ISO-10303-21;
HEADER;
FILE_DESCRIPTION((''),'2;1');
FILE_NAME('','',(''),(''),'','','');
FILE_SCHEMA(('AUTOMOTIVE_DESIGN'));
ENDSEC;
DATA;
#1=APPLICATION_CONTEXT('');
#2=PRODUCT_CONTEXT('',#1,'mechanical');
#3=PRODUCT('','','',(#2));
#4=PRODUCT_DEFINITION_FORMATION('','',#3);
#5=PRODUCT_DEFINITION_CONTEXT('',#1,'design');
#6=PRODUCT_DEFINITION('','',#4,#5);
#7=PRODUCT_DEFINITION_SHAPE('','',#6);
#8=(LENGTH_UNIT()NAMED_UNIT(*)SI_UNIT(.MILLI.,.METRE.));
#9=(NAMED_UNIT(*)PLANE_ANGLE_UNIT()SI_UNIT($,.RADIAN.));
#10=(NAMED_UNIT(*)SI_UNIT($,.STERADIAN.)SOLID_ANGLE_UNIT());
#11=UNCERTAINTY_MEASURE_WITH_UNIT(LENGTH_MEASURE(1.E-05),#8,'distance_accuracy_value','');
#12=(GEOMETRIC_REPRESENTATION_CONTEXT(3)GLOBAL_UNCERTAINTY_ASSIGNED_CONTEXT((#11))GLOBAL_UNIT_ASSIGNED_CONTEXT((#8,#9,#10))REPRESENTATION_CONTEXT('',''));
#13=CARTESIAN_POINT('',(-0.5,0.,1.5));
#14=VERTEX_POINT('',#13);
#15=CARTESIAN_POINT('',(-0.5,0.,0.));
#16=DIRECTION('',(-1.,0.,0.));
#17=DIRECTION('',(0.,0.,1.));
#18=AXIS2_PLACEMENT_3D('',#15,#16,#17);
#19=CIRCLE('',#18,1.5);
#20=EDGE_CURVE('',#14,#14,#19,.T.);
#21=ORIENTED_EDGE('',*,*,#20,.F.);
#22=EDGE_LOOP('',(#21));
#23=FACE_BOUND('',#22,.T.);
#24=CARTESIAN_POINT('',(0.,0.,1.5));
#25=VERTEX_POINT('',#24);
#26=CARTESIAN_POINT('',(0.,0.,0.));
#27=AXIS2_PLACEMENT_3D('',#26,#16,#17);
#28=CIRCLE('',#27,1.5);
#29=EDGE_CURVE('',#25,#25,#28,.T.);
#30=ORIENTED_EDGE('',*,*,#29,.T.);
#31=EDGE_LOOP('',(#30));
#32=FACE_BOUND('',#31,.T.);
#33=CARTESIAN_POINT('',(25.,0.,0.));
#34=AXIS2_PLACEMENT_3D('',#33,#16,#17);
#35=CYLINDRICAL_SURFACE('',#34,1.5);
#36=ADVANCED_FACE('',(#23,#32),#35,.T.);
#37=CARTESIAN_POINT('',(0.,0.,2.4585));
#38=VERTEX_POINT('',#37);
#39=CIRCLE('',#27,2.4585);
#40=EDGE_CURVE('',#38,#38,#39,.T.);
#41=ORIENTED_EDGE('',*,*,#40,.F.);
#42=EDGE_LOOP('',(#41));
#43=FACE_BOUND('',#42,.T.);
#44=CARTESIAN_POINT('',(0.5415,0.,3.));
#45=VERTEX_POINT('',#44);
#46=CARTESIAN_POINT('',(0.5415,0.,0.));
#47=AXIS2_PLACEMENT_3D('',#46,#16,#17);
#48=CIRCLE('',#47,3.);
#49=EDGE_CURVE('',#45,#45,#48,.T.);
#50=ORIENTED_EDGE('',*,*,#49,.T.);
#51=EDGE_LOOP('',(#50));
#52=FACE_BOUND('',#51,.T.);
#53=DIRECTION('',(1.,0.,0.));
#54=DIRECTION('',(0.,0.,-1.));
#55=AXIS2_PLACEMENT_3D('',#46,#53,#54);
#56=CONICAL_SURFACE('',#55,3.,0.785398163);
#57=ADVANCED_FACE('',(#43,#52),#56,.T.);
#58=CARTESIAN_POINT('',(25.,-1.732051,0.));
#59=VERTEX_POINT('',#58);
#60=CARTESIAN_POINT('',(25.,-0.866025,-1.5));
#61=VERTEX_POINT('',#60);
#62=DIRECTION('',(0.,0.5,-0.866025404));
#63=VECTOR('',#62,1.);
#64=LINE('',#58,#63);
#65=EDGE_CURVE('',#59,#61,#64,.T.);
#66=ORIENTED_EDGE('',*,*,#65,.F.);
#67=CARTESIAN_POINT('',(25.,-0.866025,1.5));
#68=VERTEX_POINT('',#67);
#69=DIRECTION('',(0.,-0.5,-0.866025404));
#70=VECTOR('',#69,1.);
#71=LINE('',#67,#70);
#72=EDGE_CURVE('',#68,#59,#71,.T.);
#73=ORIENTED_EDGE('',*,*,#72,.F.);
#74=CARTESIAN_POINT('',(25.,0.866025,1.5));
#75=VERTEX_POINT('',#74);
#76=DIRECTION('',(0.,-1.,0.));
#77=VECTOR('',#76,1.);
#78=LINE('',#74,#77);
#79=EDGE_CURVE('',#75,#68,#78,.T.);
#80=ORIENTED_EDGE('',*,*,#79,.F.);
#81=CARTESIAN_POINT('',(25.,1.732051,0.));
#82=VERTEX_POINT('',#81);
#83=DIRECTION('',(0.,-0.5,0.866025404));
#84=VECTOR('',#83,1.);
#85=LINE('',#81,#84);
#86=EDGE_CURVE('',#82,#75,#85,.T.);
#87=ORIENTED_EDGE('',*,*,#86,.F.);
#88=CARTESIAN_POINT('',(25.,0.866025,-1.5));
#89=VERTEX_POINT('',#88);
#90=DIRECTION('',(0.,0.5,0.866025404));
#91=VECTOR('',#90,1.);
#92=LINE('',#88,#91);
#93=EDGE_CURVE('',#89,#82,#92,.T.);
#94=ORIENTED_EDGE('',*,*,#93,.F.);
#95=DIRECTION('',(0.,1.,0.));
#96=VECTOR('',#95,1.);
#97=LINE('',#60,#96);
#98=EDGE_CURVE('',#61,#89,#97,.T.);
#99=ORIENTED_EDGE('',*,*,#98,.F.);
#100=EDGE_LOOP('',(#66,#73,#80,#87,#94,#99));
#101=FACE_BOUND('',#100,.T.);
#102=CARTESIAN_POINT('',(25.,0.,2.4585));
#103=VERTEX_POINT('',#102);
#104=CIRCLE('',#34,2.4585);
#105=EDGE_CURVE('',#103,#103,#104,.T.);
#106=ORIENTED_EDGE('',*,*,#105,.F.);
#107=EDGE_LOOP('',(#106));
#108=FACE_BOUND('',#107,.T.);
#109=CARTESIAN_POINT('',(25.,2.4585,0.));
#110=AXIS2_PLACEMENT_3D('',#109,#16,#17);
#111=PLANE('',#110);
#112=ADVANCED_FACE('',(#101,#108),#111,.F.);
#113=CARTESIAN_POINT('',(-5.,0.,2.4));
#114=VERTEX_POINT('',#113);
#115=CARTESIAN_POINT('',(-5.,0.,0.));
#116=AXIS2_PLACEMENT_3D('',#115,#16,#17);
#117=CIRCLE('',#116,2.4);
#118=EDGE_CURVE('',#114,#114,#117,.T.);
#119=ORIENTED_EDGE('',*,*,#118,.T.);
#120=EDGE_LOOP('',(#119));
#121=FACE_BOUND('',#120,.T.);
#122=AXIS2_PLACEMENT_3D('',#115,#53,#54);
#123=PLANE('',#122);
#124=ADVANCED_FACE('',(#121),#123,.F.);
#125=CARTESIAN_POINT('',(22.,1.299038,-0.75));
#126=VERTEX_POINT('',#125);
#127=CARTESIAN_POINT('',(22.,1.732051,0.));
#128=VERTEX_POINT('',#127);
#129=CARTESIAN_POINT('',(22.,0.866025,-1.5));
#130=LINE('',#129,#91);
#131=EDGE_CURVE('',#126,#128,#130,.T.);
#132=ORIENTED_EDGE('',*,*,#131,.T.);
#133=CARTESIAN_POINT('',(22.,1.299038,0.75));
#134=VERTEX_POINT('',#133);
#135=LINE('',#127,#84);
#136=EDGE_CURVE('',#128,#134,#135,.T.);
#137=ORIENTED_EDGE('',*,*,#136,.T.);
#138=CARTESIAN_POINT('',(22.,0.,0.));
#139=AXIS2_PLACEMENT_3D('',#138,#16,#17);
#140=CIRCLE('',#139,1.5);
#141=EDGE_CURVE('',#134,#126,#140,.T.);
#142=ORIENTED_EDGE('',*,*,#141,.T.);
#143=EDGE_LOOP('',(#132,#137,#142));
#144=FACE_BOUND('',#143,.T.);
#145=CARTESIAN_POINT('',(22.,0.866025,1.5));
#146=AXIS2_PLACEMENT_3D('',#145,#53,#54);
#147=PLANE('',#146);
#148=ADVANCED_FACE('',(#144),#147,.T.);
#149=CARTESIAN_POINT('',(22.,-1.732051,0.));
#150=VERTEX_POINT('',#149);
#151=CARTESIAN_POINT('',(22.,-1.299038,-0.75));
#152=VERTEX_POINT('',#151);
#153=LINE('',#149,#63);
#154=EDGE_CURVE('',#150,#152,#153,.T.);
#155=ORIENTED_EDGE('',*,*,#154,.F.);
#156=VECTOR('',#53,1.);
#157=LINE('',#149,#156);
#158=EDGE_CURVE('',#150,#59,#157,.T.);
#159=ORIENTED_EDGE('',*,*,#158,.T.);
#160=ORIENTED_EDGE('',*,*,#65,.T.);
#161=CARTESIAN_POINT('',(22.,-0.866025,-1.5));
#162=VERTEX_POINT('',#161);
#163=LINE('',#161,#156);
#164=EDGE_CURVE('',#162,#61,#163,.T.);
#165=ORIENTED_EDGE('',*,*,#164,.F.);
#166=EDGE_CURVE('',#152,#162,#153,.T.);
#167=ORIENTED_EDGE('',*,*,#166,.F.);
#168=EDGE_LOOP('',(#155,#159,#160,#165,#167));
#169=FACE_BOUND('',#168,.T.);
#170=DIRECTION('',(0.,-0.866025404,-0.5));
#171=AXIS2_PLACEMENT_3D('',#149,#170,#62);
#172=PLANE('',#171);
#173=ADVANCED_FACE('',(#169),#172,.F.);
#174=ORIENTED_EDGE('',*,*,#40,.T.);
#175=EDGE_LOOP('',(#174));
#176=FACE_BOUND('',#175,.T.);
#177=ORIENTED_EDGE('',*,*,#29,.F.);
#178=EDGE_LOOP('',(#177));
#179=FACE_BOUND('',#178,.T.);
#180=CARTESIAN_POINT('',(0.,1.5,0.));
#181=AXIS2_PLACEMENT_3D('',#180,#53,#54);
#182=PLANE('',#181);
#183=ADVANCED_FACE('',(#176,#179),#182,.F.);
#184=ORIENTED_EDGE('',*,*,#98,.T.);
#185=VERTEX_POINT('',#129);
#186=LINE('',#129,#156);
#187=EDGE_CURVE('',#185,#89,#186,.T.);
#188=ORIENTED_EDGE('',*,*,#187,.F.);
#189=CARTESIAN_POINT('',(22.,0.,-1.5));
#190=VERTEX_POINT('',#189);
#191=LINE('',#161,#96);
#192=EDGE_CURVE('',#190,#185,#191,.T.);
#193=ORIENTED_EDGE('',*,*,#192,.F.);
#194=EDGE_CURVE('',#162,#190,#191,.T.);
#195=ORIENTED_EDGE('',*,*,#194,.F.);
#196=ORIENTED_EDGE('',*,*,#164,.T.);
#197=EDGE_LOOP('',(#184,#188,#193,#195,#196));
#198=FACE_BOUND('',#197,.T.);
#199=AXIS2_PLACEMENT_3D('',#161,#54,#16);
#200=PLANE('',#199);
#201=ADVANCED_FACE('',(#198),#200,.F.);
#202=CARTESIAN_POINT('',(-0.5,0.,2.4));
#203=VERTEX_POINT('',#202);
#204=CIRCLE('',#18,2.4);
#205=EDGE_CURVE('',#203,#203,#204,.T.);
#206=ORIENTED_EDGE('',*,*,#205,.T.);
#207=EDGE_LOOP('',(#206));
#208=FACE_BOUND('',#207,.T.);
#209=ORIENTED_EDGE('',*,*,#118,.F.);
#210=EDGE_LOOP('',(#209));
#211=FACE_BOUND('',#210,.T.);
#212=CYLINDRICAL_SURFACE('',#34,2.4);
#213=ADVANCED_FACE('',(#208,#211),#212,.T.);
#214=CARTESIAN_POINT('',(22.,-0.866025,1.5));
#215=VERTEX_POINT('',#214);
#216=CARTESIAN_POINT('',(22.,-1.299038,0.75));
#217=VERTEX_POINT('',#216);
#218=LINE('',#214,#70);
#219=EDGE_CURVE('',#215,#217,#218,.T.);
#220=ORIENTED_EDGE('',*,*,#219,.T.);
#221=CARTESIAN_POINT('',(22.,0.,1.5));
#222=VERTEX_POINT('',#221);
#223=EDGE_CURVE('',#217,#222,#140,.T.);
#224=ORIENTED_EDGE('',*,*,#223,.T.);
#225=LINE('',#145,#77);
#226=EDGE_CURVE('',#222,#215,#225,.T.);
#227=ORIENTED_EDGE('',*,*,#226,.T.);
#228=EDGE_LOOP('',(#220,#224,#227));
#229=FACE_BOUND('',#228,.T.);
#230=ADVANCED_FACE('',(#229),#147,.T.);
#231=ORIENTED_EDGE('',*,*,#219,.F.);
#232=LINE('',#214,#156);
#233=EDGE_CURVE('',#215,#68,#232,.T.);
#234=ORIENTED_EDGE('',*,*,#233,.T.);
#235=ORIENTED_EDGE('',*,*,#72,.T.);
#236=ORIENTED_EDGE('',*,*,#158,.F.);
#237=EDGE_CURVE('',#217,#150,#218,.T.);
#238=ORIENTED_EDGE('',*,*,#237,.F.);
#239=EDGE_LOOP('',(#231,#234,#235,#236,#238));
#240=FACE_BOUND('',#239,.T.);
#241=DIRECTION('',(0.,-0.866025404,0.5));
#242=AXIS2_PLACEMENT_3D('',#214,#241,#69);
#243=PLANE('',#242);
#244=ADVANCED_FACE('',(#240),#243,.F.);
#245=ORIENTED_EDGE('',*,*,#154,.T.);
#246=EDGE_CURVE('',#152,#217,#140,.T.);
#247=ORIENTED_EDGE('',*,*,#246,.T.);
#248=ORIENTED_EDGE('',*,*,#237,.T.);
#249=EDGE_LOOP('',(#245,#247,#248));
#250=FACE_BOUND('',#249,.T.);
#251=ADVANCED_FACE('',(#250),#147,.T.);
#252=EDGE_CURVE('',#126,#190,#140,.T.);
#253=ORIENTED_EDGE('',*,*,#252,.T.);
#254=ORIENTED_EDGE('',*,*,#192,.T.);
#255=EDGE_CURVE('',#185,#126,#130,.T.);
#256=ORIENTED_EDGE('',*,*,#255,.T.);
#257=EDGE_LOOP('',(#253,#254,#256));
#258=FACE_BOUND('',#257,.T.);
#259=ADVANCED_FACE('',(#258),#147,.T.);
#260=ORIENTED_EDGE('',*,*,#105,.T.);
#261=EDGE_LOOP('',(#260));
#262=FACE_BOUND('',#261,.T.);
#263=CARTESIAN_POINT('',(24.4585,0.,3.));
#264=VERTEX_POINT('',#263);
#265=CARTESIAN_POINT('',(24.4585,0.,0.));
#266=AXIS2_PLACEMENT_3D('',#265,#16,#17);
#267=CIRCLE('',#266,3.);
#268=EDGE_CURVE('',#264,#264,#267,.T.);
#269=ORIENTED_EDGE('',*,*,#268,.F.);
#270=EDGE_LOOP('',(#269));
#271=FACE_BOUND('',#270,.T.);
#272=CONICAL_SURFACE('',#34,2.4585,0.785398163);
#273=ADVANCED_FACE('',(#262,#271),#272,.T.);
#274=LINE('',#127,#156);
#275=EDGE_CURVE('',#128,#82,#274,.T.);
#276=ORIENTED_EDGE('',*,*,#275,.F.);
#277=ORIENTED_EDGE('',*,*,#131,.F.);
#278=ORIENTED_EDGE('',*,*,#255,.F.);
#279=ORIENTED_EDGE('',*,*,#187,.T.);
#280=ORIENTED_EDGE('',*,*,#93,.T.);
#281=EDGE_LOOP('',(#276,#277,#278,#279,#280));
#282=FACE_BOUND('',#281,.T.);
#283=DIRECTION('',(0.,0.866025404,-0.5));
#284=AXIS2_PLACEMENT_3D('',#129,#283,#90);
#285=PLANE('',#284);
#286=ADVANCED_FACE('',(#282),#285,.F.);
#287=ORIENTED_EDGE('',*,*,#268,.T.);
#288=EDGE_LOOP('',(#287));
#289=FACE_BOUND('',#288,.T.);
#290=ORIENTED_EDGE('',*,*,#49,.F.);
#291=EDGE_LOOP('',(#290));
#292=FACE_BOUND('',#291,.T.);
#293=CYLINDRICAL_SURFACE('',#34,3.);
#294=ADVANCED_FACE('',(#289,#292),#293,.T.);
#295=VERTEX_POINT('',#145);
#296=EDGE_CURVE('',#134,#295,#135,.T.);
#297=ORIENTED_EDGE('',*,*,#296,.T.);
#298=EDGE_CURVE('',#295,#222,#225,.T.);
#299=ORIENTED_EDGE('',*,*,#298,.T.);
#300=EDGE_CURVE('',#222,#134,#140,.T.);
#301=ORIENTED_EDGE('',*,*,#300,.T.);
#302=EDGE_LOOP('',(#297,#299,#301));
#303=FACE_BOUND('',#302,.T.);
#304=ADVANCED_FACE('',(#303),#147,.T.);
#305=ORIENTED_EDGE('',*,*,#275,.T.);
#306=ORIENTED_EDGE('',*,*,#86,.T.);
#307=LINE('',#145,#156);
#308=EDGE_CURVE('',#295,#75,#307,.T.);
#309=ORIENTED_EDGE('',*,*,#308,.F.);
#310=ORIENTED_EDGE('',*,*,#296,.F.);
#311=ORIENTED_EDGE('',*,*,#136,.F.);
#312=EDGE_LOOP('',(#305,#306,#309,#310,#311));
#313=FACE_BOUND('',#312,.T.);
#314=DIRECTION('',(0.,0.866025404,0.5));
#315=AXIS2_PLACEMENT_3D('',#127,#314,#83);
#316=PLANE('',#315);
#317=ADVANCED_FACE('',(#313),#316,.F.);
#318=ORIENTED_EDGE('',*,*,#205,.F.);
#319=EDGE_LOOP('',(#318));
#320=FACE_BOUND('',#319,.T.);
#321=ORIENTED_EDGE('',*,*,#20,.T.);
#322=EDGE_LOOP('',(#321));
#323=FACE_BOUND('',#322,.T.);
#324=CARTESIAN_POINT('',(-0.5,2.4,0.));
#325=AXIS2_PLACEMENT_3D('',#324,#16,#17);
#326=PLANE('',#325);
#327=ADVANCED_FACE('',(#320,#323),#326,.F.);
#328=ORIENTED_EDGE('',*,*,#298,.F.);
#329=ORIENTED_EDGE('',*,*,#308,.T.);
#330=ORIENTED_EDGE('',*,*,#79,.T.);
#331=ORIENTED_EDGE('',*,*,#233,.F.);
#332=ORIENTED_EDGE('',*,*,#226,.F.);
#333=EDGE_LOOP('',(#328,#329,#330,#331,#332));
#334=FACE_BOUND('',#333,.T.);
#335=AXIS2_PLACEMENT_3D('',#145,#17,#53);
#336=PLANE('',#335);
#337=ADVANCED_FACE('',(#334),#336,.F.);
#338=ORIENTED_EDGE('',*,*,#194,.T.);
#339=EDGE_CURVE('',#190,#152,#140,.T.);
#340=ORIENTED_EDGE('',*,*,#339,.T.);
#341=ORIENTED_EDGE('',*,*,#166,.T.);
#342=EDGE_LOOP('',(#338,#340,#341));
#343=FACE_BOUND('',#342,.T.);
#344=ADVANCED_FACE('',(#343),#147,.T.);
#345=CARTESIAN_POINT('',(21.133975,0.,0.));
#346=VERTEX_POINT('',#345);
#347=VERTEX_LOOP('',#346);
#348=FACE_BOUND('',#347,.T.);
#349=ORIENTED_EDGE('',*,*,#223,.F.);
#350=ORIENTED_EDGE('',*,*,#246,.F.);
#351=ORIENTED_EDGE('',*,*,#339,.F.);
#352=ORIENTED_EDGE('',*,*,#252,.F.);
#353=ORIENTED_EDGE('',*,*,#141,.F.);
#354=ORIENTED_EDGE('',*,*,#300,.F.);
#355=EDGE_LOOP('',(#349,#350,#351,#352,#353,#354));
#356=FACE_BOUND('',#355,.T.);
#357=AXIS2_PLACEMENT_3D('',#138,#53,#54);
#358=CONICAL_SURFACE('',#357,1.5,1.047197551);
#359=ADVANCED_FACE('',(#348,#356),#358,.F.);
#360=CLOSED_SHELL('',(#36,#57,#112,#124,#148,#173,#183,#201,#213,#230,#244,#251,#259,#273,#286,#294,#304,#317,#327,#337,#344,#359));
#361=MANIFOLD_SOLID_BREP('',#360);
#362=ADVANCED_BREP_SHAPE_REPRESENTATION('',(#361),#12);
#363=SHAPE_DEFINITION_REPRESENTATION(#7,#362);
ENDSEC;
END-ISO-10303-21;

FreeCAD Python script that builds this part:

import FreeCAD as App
import Part
import Sketcher
from FreeCAD import Vector
Q = App.Units.Quantity


def add_polygon(sketch, points):
    """Adds a closed chain of lines whose ends are joined by coincident constraints."""
    first, n = sketch.GeometryCount, len(points)
    for a, b in zip(points, points[1:] + points[:1]):
        sketch.addGeometry(Part.LineSegment(App.Vector(*a, 0), App.Vector(*b, 0)), False)
    for i in range(n):
        sketch.addConstraint(Sketcher.Constraint("Coincident", first + i, 2, first + (i + 1) % n, 1))

doc = App.newDocument("Part")
body = doc.addObject("PartDesign::Body", "Body")

sketch1 = body.newObject("Sketcher::SketchObject", "Sketch")
sketch1.AttachmentSupport = (doc.getObject("XY_Plane"), [""])
sketch1.MapMode = "FlatFace"
add_polygon(sketch1, [(-5, 2.4), (-5, 0), (25, 0), (25, 2.5), (24.5, 3), (0.5, 3), (0, 2.5), (0, 1.5), (-0.5, 1.5), (-0.5, 2.4)])
sketch1.addConstraint(Sketcher.Constraint("Vertical", 0))
sketch1.addConstraint(Sketcher.Constraint("Horizontal", 1))
sketch1.addConstraint(Sketcher.Constraint("Vertical", 2))
sketch1.addConstraint(Sketcher.Constraint("Horizontal", 4))
sketch1.addConstraint(Sketcher.Constraint("Vertical", 6))
sketch1.addConstraint(Sketcher.Constraint("Horizontal", 7))
sketch1.addConstraint(Sketcher.Constraint("Vertical", 8))
sketch1.addConstraint(Sketcher.Constraint("Horizontal", 9))
sketch1.addConstraint(Sketcher.Constraint("PointOnObject", 0, 2, -1))
sketch1.addConstraint(Sketcher.Constraint("PointOnObject", 5, 2, -2))
sketch1.addConstraint(Sketcher.Constraint("Perpendicular", 3, 5))
sketch1.addConstraint(Sketcher.Constraint("Horizontal", 2, 2, 5, 2))
sketch1.addConstraint(Sketcher.Constraint("Equal", 3, 5))
sketch1.addConstraint(Sketcher.Constraint("DistanceX", 1, 1, 1, 2, 30.0))
sketch1.addConstraint(Sketcher.Constraint("DistanceX", 7, 2, 7, 1, 0.5))
sketch1.addConstraint(Sketcher.Constraint("DistanceX", 9, 2, 9, 1, 4.5))
sketch1.addConstraint(Sketcher.Constraint("DistanceY", 0, 2, 0, 1, 2.4))
sketch1.addConstraint(Sketcher.Constraint("DistanceY", 8, 1, 8, 2, 0.9))
sketch1.addConstraint(Sketcher.Constraint("DistanceY", -1, 1, 3, 2, 3.0))
sketch1.addConstraint(Sketcher.Constraint("DistanceX", 4, 2, 4, 1, 23.917))
revolution = body.newObject("PartDesign::Revolution", "Revolution")
revolution.Profile = sketch1
revolution.ReferenceAxis = (sketch1, ["H_Axis"])
revolution.Angle = 360

sketch2 = body.newObject("Sketcher::SketchObject", "Sketch001")
sketch2.AttachmentSupport = (doc.getObject("XZ_Plane"), [""])
sketch2.MapMode = "FlatFace"
add_polygon(sketch2, [(22, -1.5), (21.1, 0), (25, 0), (25, -1.5)])
sketch2.addConstraint(Sketcher.Constraint("Horizontal", 1))
sketch2.addConstraint(Sketcher.Constraint("Vertical", 2))
sketch2.addConstraint(Sketcher.Constraint("Horizontal", 3))
sketch2.addConstraint(Sketcher.Constraint("PointOnObject", 0, 2, -1))
sketch2.addConstraint(Sketcher.Constraint("DistanceX", 3, 2, 3, 1, 3.0))
sketch2.addConstraint(Sketcher.Constraint("Angle", 0, Q("120 deg")))
sketch2.addConstraint(Sketcher.Constraint("DistanceY", 2, 2, 2, 1, 1.5))
sketch2.addConstraint(Sketcher.Constraint("DistanceX", -1, 1, 1, 2, 25.0))
groove = body.newObject("PartDesign::Groove", "Groove")
groove.Profile = sketch2
groove.ReferenceAxis = (sketch2, ["H_Axis"])
groove.Angle = 360

sketch3 = body.newObject("Sketcher::SketchObject", "Sketch002")
sketch3.AttachmentSupport = (doc.getObject("YZ_Plane"), [""])
sketch3.MapMode = "FlatFace"
sketch3.AttachmentOffset = App.Placement(Vector(0, 0, 25), App.Rotation())
add_polygon(sketch3, [(0.9, 1.5), (-0.9, 1.5), (-1.7, 0), (-0.9, -1.5), (0.9, -1.5), (1.7, 0)])
sketch3.addConstraint(Sketcher.Constraint("Horizontal", 0))
sketch3.addConstraint(Sketcher.Constraint("Horizontal", 3))
sketch3.addConstraint(Sketcher.Constraint("Symmetric", 0, 2, 3, 2, -1, 1))
sketch3.addConstraint(Sketcher.Constraint("Symmetric", 1, 2, 4, 2, -1, 1))
sketch3.addConstraint(Sketcher.Constraint("PointOnObject", 1, 2, -1))
sketch3.addConstraint(Sketcher.Constraint("Parallel", 2, 5))
sketch3.addConstraint(Sketcher.Constraint("Vertical", 0, 2, 2, 2))
sketch3.addConstraint(Sketcher.Constraint("Angle", 1, Q("-120 deg")))
sketch3.addConstraint(Sketcher.Constraint("DistanceY", 2, 2, 0, 2, 3.0))
sketch3.addConstraint(Sketcher.Constraint("DistanceX", 0, 2, 0, 1, 1.732051))
pocket1 = body.newObject("PartDesign::Pocket", "Pocket")
pocket1.Profile = sketch3
pocket1.Length = 3

doc.recompute()
